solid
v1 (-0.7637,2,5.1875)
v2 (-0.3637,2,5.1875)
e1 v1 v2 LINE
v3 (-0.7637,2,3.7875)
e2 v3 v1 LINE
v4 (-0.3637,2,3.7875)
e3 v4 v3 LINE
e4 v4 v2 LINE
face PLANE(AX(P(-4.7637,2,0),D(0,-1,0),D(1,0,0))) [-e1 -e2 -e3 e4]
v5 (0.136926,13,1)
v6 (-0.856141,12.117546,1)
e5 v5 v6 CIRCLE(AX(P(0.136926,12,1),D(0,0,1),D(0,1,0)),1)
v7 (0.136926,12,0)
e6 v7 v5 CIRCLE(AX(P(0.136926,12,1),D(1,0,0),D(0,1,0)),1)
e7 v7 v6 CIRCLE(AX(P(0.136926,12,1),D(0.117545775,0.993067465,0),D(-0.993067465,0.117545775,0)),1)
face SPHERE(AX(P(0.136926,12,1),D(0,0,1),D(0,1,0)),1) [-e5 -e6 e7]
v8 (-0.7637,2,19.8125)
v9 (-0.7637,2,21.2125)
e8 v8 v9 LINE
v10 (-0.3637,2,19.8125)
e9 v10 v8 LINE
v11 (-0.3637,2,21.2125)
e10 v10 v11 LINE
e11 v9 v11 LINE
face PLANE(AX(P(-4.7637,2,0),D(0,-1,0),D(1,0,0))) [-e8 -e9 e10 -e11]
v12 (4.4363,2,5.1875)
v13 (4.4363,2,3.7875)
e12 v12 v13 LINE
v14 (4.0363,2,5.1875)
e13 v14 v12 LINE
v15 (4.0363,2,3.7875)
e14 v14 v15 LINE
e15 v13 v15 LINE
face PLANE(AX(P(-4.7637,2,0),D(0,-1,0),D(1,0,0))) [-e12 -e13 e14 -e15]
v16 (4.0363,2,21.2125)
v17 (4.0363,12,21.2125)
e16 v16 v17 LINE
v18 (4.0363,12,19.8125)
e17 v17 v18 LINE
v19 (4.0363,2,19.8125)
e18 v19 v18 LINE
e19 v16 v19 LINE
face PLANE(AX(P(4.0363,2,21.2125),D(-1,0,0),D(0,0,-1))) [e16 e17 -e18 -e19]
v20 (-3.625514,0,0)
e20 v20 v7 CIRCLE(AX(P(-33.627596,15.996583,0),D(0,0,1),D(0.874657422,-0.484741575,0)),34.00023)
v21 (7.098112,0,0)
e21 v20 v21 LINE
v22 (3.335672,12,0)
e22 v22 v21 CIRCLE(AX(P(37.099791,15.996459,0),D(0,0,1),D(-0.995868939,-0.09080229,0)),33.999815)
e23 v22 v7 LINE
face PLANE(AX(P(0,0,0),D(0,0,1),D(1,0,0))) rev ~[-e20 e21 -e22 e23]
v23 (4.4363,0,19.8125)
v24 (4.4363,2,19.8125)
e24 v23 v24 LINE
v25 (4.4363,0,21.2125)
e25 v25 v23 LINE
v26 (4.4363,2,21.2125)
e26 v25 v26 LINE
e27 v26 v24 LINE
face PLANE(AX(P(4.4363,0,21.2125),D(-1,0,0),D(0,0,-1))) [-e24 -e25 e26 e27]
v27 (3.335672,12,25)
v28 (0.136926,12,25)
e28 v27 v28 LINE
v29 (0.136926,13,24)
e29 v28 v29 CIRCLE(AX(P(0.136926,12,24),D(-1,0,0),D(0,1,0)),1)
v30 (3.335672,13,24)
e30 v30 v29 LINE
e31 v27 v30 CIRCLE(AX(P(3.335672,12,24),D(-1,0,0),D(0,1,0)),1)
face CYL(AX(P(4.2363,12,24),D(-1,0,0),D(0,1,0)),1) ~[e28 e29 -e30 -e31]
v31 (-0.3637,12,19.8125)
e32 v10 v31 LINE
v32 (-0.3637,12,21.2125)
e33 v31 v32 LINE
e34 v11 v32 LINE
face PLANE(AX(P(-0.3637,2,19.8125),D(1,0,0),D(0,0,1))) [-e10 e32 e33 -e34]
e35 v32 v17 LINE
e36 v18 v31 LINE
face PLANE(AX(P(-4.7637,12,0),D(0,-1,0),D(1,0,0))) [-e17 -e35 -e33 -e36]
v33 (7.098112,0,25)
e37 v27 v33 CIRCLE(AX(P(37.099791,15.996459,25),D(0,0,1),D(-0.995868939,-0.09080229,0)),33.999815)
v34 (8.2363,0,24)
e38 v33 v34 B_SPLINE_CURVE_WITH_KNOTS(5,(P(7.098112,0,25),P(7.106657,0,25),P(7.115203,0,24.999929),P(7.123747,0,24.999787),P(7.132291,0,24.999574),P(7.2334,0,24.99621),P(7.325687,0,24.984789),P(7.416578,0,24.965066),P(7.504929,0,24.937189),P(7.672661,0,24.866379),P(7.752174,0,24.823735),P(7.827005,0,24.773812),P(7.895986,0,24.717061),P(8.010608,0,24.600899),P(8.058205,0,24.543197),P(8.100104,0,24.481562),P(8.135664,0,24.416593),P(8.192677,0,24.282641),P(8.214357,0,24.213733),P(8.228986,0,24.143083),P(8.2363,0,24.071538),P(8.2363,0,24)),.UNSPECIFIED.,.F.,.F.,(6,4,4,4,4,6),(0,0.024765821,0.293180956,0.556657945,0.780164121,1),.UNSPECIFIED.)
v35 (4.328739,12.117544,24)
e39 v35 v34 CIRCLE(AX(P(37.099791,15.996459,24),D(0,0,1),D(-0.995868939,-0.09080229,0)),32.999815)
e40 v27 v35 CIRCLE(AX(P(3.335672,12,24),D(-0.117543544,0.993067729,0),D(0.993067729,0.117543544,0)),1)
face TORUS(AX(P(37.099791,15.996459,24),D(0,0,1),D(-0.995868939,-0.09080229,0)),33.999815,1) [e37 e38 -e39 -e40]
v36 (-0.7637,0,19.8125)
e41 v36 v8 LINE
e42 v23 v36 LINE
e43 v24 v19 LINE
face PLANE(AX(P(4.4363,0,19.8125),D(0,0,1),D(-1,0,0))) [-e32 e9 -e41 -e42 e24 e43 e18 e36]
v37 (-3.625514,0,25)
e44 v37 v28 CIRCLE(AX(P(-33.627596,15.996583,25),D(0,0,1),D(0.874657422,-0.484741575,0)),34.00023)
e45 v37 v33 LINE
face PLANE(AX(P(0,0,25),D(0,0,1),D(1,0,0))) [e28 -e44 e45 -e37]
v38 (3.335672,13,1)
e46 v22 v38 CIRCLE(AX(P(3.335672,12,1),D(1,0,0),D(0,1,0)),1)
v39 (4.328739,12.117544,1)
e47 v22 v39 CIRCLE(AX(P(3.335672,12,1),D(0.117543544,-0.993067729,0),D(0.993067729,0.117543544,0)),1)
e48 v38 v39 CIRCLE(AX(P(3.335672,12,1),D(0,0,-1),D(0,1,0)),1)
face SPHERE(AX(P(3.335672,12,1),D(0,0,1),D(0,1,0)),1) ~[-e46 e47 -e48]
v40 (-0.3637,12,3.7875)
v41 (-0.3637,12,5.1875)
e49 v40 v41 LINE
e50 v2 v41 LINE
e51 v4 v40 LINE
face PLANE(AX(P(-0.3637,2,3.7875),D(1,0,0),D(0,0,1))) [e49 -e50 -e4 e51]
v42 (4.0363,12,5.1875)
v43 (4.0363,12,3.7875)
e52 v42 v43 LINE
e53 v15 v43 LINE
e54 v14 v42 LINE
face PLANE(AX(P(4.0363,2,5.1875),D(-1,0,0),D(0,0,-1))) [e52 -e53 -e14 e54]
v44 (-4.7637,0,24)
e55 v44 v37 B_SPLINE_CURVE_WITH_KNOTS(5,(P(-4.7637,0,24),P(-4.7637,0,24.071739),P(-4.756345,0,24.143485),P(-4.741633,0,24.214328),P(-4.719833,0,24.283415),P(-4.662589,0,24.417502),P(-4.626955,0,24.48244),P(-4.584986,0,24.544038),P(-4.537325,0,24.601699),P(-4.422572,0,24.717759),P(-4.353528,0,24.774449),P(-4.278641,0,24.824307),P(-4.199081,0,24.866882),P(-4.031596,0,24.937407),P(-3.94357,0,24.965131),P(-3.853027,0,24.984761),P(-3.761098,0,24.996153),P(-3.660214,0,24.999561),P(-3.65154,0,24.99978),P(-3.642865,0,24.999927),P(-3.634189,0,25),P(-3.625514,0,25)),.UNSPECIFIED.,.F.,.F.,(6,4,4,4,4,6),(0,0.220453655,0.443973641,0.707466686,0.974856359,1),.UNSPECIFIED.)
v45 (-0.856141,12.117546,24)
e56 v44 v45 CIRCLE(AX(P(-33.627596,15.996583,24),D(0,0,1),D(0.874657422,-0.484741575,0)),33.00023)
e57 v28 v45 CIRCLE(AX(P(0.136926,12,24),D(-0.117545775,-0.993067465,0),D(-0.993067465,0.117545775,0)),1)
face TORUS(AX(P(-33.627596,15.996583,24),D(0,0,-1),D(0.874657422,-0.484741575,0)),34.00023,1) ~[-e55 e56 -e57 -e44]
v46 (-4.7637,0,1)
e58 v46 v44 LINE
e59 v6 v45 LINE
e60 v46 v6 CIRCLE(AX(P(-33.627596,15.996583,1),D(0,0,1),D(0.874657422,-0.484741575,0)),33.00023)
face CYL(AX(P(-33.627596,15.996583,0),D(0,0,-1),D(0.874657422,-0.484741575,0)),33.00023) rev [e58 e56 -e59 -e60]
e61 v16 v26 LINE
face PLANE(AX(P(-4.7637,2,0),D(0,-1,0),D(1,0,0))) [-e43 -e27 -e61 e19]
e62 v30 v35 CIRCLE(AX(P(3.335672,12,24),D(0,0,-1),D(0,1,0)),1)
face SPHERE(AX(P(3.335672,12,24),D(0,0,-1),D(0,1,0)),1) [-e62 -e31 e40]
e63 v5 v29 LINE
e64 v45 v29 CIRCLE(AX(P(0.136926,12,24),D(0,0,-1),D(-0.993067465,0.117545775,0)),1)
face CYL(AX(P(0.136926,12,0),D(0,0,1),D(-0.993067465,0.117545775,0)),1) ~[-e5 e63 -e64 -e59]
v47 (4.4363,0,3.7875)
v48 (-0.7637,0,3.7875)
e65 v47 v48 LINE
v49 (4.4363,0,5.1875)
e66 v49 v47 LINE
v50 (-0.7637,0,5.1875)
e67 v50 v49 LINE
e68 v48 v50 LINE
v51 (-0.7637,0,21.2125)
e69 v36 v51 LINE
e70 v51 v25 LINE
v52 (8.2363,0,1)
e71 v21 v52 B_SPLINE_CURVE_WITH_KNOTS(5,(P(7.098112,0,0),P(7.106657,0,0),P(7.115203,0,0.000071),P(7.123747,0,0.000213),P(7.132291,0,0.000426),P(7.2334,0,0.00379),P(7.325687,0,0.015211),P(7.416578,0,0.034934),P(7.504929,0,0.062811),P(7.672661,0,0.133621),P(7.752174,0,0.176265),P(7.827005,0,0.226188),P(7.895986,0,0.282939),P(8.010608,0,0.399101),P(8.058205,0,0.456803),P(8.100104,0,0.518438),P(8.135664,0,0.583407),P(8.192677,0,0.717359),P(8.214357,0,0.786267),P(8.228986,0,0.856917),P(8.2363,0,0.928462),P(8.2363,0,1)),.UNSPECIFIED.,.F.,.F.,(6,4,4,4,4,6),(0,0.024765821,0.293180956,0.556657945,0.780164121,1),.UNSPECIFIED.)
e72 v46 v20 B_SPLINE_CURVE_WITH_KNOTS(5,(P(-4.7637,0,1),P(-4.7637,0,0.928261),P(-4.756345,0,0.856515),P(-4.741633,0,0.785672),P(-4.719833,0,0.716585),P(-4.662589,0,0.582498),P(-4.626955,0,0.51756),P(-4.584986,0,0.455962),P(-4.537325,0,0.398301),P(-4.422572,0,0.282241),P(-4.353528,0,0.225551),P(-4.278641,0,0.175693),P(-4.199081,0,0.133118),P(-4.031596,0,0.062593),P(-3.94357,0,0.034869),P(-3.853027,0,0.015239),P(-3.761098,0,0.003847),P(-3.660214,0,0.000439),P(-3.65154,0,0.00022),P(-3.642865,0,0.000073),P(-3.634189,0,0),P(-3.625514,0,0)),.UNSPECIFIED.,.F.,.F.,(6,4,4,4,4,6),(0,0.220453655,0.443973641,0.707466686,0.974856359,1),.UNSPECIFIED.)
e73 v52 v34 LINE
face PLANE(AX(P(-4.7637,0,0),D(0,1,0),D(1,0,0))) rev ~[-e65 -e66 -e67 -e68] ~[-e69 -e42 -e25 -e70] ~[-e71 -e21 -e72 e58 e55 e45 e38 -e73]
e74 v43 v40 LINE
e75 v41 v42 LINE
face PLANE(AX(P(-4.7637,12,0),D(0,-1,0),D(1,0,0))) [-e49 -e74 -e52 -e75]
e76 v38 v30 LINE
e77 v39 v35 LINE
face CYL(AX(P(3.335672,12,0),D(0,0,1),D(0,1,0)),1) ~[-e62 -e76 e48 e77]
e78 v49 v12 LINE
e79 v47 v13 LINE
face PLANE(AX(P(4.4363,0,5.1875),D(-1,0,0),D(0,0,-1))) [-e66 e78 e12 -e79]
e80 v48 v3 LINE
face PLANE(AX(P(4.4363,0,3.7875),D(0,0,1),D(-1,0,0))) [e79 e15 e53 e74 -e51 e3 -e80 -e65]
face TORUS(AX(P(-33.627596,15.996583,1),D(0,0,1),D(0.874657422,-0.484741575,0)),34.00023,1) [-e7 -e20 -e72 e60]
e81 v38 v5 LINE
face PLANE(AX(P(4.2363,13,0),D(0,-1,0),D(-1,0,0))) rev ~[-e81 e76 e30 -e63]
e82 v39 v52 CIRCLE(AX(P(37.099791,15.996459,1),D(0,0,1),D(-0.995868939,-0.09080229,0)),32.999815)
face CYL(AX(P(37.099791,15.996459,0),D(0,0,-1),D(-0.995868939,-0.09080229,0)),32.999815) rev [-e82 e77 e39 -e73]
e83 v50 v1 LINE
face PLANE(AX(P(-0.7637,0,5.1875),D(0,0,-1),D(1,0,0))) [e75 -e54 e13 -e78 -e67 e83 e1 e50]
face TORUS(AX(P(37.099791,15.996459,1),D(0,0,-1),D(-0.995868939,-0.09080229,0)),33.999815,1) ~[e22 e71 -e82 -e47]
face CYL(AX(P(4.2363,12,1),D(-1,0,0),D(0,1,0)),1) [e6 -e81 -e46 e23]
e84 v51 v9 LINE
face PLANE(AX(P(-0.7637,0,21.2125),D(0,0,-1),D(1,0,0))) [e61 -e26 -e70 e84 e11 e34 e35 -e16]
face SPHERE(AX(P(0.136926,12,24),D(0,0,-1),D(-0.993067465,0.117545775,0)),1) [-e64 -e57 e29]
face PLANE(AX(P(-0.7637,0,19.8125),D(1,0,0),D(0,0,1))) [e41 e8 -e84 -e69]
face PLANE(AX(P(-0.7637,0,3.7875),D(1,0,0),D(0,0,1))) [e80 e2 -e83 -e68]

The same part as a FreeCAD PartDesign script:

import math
import FreeCAD as App
import Part
import Sketcher
from FreeCAD import Vector
Q = App.Units.Quantity


def edges_at(feature, points):
    """Names of the edges that pass closest to the given points."""
    edges = feature.Shape.Edges
    near = lambda p: min(range(len(edges)), key=lambda i: edges[i].distToShape(Part.Vertex(*p))[0])
    return sorted({f"Edge{near(p) + 1}" for p in points})

doc = App.newDocument("Part")
params = doc.addObject("Spreadsheet::Sheet", "Params")
for row, (alias, value) in enumerate([
    ("sketch1_radius", "33 mm"),
    ("sketch1_width", "13 mm"),
    ("pad1_length", "25 mm"),
    ("sketch2_width", "5.2 mm"),
    ("sketch2_height", "1.4 mm"),
    ("pocket1_length", "2 mm"),
    ("sketch3_width", "4.4 mm"),
    ("sketch3_height", "1.4 mm"),
    ("pocket2_length", "10 mm"),
    ("fillet_radius", "1 mm"),
], start=1):
    params.set(f"A{row}", alias)
    params.set(f"B{row}", "=" + value)
    params.setAlias(f"B{row}", alias)

body = doc.addObject("PartDesign::Body", "Body")

sketch1 = doc.addObject("Sketcher::SketchObject", "Sketch")
body.addObject(sketch1)
sketch1.AttachmentSupport = (doc.XY_Plane, [""])
sketch1.MapMode = "FlatFace"
sketch1.addGeometry([
    Part.ArcOfCircle(Part.Circle(Vector(-34, 16, 0), Vector(0, 0, 1), 33), math.radians(-29), math.radians(-5)),
    Part.LineSegment(Vector(-5, 0, 0), Vector(8, 0, 0)),
    Part.ArcOfCircle(Part.Circle(Vector(37, 16, 0), Vector(0, 0, 1), 33), math.radians(-175), math.radians(-151)),
    Part.LineSegment(Vector(4, 13, 0), Vector(-1, 13, 0)),
], False)
sketch1.addConstraint([
    Sketcher.Constraint("Coincident", 0, 1, 1, 1),
    Sketcher.Constraint("Coincident", 1, 2, 2, 2),
    Sketcher.Constraint("Coincident", 2, 1, 3, 1),
    Sketcher.Constraint("Coincident", 3, 2, 0, 2),
    Sketcher.Constraint("Horizontal", 1),
    Sketcher.Constraint("Horizontal", 3),
    Sketcher.Constraint("Equal", 0, 2),
    Sketcher.Constraint("PointOnObject", 0, 1, -1),
    Sketcher.Constraint("Horizontal", 0, 3, 2, 3),
    Sketcher.Constraint("Radius", 0, Q("33 mm")),
    Sketcher.Constraint("DistanceX", 1, 1, 1, 2, Q("13 mm")),
    Sketcher.Constraint("DistanceY", -1, 1, 2, 1, Q("13 mm")),
    Sketcher.Constraint("DistanceX", 2, 1, 1, 2, Q("4 mm")),
    Sketcher.Constraint("DistanceX", -1, 1, 2, 3, Q("37.1 mm")),
])
sketch1.setExpression("Constraints[9]", "Params.sketch1_radius")
sketch1.setExpression("Constraints[10]", "Params.sketch1_width")
pad1 = doc.addObject("PartDesign::Pad", "Pad")
body.addObject(pad1)
pad1.Profile = sketch1
pad1.setExpression("Length", "Params.pad1_length")

sketch2 = doc.addObject("Sketcher::SketchObject", "Sketch001")
body.addObject(sketch2)
sketch2.AttachmentSupport = (doc.XZ_Plane, [""])
sketch2.MapMode = "FlatFace"
sketch2.addGeometry([
    Part.LineSegment(Vector(4.4, 21.2, 0), Vector(-0.8, 21.2, 0)),
    Part.LineSegment(Vector(-0.8, 21.2, 0), Vector(-0.8, 19.8, 0)),
    Part.LineSegment(Vector(-0.8, 19.8, 0), Vector(4.4, 19.8, 0)),
    Part.LineSegment(Vector(4.4, 19.8, 0), Vector(4.4, 21.2, 0)),
    Part.LineSegment(Vector(4.4, 5.2, 0), Vector(-0.8, 5.2, 0)),
    Part.LineSegment(Vector(-0.8, 5.2, 0), Vector(-0.8, 3.8, 0)),
    Part.LineSegment(Vector(-0.8, 3.8, 0), Vector(4.4, 3.8, 0)),
    Part.LineSegment(Vector(4.4, 3.8, 0), Vector(4.4, 5.2, 0)),
], False)
sketch2.addConstraint([
    Sketcher.Constraint("Coincident", 0, 2, 1, 1),
    Sketcher.Constraint("Coincident", 1, 2, 2, 1),
    Sketcher.Constraint("Coincident", 2, 2, 3, 1),
    Sketcher.Constraint("Coincident", 3, 2, 0, 1),
    Sketcher.Constraint("Coincident", 4, 2, 5, 1),
    Sketcher.Constraint("Coincident", 5, 2, 6, 1),
    Sketcher.Constraint("Coincident", 6, 2, 7, 1),
    Sketcher.Constraint("Coincident", 7, 2, 4, 1),
    Sketcher.Constraint("Horizontal", 0),
    Sketcher.Constraint("Vertical", 1),
    Sketcher.Constraint("Horizontal", 2),
    Sketcher.Constraint("Vertical", 3),
    Sketcher.Constraint("Horizontal", 4),
    Sketcher.Constraint("Vertical", 5),
    Sketcher.Constraint("Horizontal", 6),
    Sketcher.Constraint("Vertical", 7),
    Sketcher.Constraint("Vertical", 1, 2, 4, 2),
    Sketcher.Constraint("Vertical", 3, 2, 6, 2),
    Sketcher.Constraint("Equal", 3, 5),
    Sketcher.Constraint("DistanceX", 0, 2, 0, 1, Q("5.2 mm")),
    Sketcher.Constraint("DistanceY", 1, 2, 1, 1, Q("1.4 mm")),
    Sketcher.Constraint("DistanceY", 5, 2, 0, 2, Q("17.425 mm")),
    Sketcher.Constraint("DistanceY", -1, 1, 5, 2, Q("3.7875 mm")),
    Sketcher.Constraint("DistanceX", 0, 2, -1, 1, Q("0.7637 mm")),
])
sketch2.setExpression("Constraints[19]", "Params.sketch2_width")
sketch2.setExpression("Constraints[20]", "Params.sketch2_height")
pocket1 = doc.addObject("PartDesign::Pocket", "Pocket")
body.addObject(pocket1)
pocket1.Profile = sketch2
pocket1.setExpression("Length", "Params.pocket1_length")

sketch3 = doc.addObject("Sketcher::SketchObject", "Sketch002")
body.addObject(sketch3)
sketch3.AttachmentSupport = (doc.XZ_Plane, [""])
sketch3.MapMode = "FlatFace"
sketch3.AttachmentOffset = App.Placement(Vector(0, 0, -2), App.Rotation())
sketch3.addGeometry([
    Part.LineSegment(Vector(4, 21.2, 0), Vector(-0.4, 21.2, 0)),
    Part.LineSegment(Vector(-0.4, 21.2, 0), Vector(-0.4, 19.8, 0)),
    Part.LineSegment(Vector(-0.4, 19.8, 0), Vector(4, 19.8, 0)),
    Part.LineSegment(Vector(4, 19.8, 0), Vector(4, 21.2, 0)),
    Part.LineSegment(Vector(4, 5.2, 0), Vector(-0.4, 5.2, 0)),
    Part.LineSegment(Vector(-0.4, 5.2, 0), Vector(-0.4, 3.8, 0)),
    Part.LineSegment(Vector(-0.4, 3.8, 0), Vector(4, 3.8, 0)),
    Part.LineSegment(Vector(4, 3.8, 0), Vector(4, 5.2, 0)),
], False)
sketch3.addConstraint([
    Sketcher.Constraint("Coincident", 0, 2, 1, 1),
    Sketcher.Constraint("Coincident", 1, 2, 2, 1),
    Sketcher.Constraint("Coincident", 2, 2, 3, 1),
    Sketcher.Constraint("Coincident", 3, 2, 0, 1),
    Sketcher.Constraint("Coincident", 4, 2, 5, 1),
    Sketcher.Constraint("Coincident", 5, 2, 6, 1),
    Sketcher.Constraint("Coincident", 6, 2, 7, 1),
    Sketcher.Constraint("Coincident", 7, 2, 4, 1),
    Sketcher.Constraint("Horizontal", 0),
    Sketcher.Constraint("Vertical", 1),
    Sketcher.Constraint("Horizontal", 2),
    Sketcher.Constraint("Vertical", 3),
    Sketcher.Constraint("Horizontal", 4),
    Sketcher.Constraint("Vertical", 5),
    Sketcher.Constraint("Horizontal", 6),
    Sketcher.Constraint("Vertical", 7),
    Sketcher.Constraint("Vertical", 1, 2, 4, 2),
    Sketcher.Constraint("Vertical", 3, 2, 6, 2),
    Sketcher.Constraint("Equal", 3, 5),
    Sketcher.Constraint("DistanceX", 0, 2, 0, 1, Q("4.4 mm")),
    Sketcher.Constraint("DistanceY", 1, 2, 1, 1, Q("1.4 mm")),
    Sketcher.Constraint("DistanceY", 4, 2, 1, 2, Q("14.625 mm")),
    Sketcher.Constraint("DistanceX", 0, 2, -1, 1, Q("0.3637 mm")),
    Sketcher.Constraint("DistanceY", -1, 1, 0, 2, Q("21.2125 mm")),
])
sketch3.setExpression("Constraints[19]", "Params.sketch3_width")
sketch3.setExpression("Constraints[20]", "Params.sketch3_height")
pocket2 = doc.addObject("PartDesign::Pocket", "Pocket001")
body.addObject(pocket2)
pocket2.Profile = sketch3
pocket2.setExpression("Length", "Params.pocket2_length")
doc.recompute()

fillet = doc.addObject("PartDesign::Fillet", "Fillet")
body.addObject(fillet)
fillet.Base = (pocket2, edges_at(pocket2, [
    (4.236, 13, 12.5),
    (1.736, 13, 25),
    (-0.764, 13, 12.5),
    (1.736, 13, 0),
    (5.559, 6.292, 25),
    (-2.087, 6.292, 25),
    (5.559, 6.292, 0),
    (-2.087, 6.292, 0),
]))
fillet.setExpression("Radius", "Params.fillet_radius")

doc.recompute()
